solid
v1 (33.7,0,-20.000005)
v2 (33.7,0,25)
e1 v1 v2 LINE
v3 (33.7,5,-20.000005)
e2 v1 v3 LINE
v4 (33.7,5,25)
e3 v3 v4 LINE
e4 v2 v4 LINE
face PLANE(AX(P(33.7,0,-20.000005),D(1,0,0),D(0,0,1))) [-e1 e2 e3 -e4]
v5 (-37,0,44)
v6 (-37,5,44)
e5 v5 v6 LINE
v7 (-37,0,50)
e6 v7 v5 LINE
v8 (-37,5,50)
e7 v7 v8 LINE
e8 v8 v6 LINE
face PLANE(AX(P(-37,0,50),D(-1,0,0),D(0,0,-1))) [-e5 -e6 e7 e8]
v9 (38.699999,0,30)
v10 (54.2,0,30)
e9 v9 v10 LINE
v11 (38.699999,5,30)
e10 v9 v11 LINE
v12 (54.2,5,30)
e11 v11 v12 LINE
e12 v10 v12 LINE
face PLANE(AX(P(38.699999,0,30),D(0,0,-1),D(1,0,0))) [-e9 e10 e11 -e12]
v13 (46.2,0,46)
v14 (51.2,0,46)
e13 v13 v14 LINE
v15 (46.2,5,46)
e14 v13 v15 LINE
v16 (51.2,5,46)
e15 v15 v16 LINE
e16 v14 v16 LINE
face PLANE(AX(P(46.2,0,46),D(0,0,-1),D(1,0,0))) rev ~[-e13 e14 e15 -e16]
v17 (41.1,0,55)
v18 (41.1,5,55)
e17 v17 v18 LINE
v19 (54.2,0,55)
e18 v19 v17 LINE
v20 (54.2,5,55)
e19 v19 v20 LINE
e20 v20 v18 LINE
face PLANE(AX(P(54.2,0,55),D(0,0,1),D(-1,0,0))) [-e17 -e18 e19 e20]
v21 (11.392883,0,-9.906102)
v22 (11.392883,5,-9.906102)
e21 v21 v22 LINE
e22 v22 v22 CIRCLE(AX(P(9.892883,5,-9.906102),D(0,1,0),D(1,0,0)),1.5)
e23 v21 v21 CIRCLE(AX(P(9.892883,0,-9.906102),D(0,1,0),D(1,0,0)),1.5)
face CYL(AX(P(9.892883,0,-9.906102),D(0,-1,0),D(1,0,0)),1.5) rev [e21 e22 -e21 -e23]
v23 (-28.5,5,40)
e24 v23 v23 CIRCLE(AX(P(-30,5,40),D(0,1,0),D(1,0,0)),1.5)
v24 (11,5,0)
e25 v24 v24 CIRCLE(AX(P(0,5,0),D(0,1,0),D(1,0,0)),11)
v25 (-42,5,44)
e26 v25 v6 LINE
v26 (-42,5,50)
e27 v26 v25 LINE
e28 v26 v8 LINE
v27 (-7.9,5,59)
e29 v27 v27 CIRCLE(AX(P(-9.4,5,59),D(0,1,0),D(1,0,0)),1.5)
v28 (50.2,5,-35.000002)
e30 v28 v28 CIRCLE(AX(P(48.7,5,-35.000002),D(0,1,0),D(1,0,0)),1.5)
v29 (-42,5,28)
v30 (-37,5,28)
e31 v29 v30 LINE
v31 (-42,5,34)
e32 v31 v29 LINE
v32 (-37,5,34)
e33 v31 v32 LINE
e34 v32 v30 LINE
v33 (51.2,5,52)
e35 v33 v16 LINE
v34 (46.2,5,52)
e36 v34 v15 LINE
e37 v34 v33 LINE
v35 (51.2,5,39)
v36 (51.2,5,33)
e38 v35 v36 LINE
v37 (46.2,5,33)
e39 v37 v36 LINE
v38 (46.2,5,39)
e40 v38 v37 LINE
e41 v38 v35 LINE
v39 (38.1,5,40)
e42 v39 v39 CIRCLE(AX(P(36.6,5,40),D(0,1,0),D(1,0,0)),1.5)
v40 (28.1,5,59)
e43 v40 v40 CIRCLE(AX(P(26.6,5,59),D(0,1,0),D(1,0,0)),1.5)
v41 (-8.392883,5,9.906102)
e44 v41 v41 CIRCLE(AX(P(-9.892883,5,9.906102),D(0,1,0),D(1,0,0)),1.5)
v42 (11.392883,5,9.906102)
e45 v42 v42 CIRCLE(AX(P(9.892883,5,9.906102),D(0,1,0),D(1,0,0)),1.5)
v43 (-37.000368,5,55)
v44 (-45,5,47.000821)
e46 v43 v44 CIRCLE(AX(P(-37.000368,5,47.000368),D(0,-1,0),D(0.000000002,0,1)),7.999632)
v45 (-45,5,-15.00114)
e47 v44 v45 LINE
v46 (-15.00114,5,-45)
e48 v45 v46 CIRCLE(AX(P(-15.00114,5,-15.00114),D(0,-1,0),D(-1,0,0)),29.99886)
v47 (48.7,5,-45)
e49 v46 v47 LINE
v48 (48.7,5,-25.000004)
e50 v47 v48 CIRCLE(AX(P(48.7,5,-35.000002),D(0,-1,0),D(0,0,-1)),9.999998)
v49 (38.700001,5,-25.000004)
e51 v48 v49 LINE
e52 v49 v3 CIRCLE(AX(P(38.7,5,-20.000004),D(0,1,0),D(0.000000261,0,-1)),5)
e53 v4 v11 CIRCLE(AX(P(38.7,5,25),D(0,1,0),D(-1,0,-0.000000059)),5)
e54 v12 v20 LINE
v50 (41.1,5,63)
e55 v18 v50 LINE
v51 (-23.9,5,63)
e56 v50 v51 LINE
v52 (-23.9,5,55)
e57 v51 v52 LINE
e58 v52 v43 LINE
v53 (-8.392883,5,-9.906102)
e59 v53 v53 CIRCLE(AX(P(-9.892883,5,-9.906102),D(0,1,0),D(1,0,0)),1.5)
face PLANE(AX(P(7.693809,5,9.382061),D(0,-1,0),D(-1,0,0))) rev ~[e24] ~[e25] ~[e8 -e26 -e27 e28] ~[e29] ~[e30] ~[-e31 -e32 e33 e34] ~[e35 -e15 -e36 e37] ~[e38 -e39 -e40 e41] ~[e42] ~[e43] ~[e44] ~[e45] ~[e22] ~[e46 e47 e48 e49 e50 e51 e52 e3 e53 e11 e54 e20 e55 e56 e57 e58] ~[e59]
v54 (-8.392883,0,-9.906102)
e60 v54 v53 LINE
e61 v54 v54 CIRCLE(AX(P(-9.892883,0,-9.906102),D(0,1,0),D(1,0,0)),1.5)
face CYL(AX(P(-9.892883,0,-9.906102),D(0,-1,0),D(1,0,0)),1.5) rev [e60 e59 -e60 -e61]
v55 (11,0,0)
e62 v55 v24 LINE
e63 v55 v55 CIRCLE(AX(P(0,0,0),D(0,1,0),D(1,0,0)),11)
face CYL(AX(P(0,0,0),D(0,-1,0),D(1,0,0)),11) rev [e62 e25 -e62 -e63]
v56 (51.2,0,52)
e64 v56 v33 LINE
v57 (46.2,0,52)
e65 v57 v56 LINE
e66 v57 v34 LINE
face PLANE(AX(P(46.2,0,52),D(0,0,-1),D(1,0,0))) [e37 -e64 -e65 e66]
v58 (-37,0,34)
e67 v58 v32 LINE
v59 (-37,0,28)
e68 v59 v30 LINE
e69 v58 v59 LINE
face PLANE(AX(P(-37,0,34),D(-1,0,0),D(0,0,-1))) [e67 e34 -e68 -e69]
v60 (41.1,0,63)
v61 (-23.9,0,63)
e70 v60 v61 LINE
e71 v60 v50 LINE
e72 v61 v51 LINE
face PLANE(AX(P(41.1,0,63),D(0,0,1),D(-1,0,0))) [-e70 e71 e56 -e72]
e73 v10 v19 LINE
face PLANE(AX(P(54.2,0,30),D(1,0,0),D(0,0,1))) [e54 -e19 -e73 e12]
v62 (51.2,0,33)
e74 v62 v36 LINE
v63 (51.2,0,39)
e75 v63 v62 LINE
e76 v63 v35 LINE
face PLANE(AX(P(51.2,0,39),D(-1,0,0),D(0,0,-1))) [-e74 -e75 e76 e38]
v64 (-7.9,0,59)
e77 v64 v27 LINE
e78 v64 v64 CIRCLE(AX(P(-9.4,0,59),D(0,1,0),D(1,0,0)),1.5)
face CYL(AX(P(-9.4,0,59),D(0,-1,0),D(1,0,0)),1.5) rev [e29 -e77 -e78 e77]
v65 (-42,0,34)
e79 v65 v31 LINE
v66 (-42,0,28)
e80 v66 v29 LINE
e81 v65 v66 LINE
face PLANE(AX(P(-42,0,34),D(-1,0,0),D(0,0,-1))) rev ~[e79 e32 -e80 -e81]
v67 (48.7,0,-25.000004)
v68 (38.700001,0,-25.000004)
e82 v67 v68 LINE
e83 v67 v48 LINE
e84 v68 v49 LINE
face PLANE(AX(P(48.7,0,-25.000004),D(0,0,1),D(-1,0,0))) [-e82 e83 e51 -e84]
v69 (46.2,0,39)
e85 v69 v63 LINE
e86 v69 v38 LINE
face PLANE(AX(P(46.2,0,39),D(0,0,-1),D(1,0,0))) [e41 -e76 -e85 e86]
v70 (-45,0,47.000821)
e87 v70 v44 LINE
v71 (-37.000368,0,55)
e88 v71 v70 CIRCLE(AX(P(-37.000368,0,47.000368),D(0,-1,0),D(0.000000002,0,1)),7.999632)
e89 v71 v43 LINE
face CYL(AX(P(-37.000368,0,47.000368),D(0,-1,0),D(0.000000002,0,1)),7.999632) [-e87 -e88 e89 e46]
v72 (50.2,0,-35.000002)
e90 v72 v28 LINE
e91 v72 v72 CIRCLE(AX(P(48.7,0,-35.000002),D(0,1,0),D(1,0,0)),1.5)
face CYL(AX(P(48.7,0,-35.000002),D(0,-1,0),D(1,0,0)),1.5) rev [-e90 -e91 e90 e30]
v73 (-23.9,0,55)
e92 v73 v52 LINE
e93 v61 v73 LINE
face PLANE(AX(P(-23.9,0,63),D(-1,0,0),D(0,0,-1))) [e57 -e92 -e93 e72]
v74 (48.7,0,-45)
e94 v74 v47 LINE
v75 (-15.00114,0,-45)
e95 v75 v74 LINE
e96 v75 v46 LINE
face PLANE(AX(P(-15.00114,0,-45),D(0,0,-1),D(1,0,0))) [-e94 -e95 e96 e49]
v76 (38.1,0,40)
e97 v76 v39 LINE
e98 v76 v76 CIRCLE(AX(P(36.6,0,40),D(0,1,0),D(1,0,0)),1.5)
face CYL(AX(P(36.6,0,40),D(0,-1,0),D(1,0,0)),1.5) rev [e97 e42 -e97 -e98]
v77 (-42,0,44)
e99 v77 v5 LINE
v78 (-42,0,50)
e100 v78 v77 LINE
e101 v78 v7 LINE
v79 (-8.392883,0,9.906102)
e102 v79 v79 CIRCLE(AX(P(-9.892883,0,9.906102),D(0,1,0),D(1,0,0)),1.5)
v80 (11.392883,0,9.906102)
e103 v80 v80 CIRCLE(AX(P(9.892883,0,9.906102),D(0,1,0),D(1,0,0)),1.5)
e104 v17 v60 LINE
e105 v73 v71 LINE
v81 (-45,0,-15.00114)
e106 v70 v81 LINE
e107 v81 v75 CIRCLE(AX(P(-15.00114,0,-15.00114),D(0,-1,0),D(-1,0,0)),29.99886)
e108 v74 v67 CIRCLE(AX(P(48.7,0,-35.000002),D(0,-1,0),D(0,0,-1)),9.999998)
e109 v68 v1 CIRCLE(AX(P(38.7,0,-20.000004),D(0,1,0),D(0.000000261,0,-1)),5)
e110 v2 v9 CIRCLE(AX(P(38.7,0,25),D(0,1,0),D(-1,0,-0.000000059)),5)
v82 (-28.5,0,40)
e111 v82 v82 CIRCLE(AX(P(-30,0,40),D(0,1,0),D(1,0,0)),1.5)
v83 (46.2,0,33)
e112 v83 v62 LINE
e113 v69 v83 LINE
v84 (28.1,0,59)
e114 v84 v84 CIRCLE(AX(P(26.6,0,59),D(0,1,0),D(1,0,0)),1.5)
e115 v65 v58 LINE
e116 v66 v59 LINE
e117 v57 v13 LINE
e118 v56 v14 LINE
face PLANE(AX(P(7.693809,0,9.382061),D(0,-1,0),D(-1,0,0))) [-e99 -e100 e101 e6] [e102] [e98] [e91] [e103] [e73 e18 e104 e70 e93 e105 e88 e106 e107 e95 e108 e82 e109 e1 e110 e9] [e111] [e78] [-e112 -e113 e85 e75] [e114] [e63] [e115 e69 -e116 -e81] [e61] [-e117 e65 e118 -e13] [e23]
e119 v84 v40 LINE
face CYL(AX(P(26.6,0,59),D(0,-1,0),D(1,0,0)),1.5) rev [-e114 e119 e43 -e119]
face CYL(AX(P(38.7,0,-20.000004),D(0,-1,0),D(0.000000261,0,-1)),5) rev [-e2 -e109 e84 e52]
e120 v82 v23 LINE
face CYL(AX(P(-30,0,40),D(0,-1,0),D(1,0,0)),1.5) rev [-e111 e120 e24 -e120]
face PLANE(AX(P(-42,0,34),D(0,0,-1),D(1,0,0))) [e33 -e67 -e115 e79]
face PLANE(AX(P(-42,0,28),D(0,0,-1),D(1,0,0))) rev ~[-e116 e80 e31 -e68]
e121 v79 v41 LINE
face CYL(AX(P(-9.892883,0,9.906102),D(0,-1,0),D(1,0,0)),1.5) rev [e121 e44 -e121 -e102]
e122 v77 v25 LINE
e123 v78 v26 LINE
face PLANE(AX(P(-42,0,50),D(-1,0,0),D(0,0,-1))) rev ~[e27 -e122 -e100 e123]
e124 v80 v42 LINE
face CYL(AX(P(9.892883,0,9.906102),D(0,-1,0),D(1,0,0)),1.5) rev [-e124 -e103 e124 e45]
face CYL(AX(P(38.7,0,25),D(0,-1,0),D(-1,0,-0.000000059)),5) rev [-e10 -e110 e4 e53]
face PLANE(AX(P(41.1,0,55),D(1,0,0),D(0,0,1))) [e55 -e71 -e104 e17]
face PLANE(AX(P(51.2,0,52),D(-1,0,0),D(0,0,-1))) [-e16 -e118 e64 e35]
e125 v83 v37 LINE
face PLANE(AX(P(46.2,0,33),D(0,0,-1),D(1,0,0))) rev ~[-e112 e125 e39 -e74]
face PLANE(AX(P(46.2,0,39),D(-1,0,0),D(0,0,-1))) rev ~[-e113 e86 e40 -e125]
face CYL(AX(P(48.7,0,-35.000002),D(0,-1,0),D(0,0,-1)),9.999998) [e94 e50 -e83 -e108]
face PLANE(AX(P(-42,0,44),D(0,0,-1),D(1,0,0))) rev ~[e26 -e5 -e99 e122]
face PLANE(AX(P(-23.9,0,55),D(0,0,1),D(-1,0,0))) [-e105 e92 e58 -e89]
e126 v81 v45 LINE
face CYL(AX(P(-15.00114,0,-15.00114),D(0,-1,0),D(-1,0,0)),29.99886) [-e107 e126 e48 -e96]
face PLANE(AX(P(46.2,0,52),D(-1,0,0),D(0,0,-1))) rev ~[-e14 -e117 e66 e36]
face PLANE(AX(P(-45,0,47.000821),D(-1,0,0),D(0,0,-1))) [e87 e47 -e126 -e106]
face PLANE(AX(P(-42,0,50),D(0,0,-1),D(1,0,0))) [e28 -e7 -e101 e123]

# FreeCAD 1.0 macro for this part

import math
import FreeCAD as App
import Part
import Sketcher

V = App.Vector

doc = App.newDocument("Part")
body = doc.addObject("PartDesign::Body", "Body")

sketch1 = doc.addObject("Sketcher::SketchObject", "Sketch")
body.addObject(sketch1)
sketch1.AttachmentSupport = (doc.XZ_Plane, [""])
sketch1.MapMode = "FlatFace"
sketch1.addGeometry([
    Part.LineSegment(V(38.700001, -25.000004, 0), V(48.7, -25.000004, 0)),
    Part.ArcOfCircle(Part.Circle(V(48.7, -35.000002, 0), V(0, 0, 1), 9.999998), math.radians(-90), math.radians(90)),
    Part.LineSegment(V(48.7, -45, 0), V(-15.00114, -45, 0)),
    Part.ArcOfCircle(Part.Circle(V(-15.00114, -15.00114, 0), V(0, 0, 1), 29.99886), math.radians(180), math.radians(270)),
    Part.LineSegment(V(-45, -15.00114, 0), V(-45, 47.000821, 0)),
    Part.ArcOfCircle(Part.Circle(V(-37.000368, 47.000368, 0), V(0, 0, 1), 7.999632), math.radians(90), math.radians(179.996759)),
    Part.LineSegment(V(-37.000368, 55, 0), V(-23.9, 55, 0)),
    Part.LineSegment(V(-23.9, 55, 0), V(-23.9, 63, 0)),
    Part.LineSegment(V(-23.9, 63, 0), V(41.1, 63, 0)),
    Part.LineSegment(V(41.1, 63, 0), V(41.1, 55, 0)),
    Part.LineSegment(V(41.1, 55, 0), V(54.2, 55, 0)),
    Part.LineSegment(V(54.2, 55, 0), V(54.2, 30, 0)),
    Part.LineSegment(V(54.2, 30, 0), V(38.699999, 30, 0)),
    Part.ArcOfCircle(Part.Circle(V(38.7, 25, 0), V(0, 0, 1), 5), math.radians(90.000003), math.radians(180.000003)),
    Part.LineSegment(V(33.7, 25, 0), V(33.7, -20.000005, 0)),
    Part.ArcOfCircle(Part.Circle(V(38.7, -20.000004, 0), V(0, 0, 1), 5), math.radians(-179.999985), math.radians(-89.999985)),
    Part.LineSegment(V(46.2, 52, 0), V(46.2, 46, 0)),
    Part.LineSegment(V(46.2, 46, 0), V(51.2, 46, 0)),
    Part.LineSegment(V(51.2, 46, 0), V(51.2, 52, 0)),
    Part.LineSegment(V(51.2, 52, 0), V(46.2, 52, 0)),
    Part.Circle(V(36.6, 40, 0), V(0, 0, 1), 1.5),
    Part.Circle(V(26.6, 59, 0), V(0, 0, 1), 1.5),
    Part.LineSegment(V(46.2, 39, 0), V(46.2, 33, 0)),
    Part.LineSegment(V(46.2, 33, 0), V(51.2, 33, 0)),
    Part.LineSegment(V(51.2, 33, 0), V(51.2, 39, 0)),
    Part.LineSegment(V(51.2, 39, 0), V(46.2, 39, 0)),
    Part.Circle(V(-9.4, 59, 0), V(0, 0, 1), 1.5),
    Part.Circle(V(-30, 40, 0), V(0, 0, 1), 1.5),
    Part.LineSegment(V(-42, 50, 0), V(-42, 44, 0)),
    Part.LineSegment(V(-42, 44, 0), V(-37, 44, 0)),
    Part.LineSegment(V(-37, 44, 0), V(-37, 50, 0)),
    Part.LineSegment(V(-37, 50, 0), V(-42, 50, 0)),
    Part.LineSegment(V(-42, 34, 0), V(-42, 28, 0)),
    Part.LineSegment(V(-42, 28, 0), V(-37, 28, 0)),
    Part.LineSegment(V(-37, 28, 0), V(-37, 34, 0)),
    Part.LineSegment(V(-37, 34, 0), V(-42, 34, 0)),
    Part.Circle(V(9.892883, 9.906102, 0), V(0, 0, 1), 1.5),
    Part.Circle(V(9.892883, -9.906102, 0), V(0, 0, 1), 1.5),
    Part.Circle(V(48.7, -35.000002, 0), V(0, 0, 1), 1.5),
    Part.Circle(V(0, 0, 0), V(0, 0, 1), 11),
    Part.Circle(V(-9.892883, 9.906102, 0), V(0, 0, 1), 1.5),
    Part.Circle(V(-9.892883, -9.906102, 0), V(0, 0, 1), 1.5),
], False)
sketch1.addConstraint([
    Sketcher.Constraint("Tangent", 0, 2, 1, 2),
    Sketcher.Constraint("Tangent", 1, 1, 2, 1),
    Sketcher.Constraint("Tangent", 2, 2, 3, 2),
    Sketcher.Constraint("Tangent", 3, 1, 4, 1),
    Sketcher.Constraint("Coincident", 4, 2, 5, 2),
    Sketcher.Constraint("Tangent", 5, 1, 6, 1),
    Sketcher.Constraint("Coincident", 6, 2, 7, 1),
    Sketcher.Constraint("Coincident", 7, 2, 8, 1),
    Sketcher.Constraint("Coincident", 8, 2, 9, 1),
    Sketcher.Constraint("Coincident", 9, 2, 10, 1),
    Sketcher.Constraint("Coincident", 10, 2, 11, 1),
    Sketcher.Constraint("Coincident", 11, 2, 12, 1),
    Sketcher.Constraint("Tangent", 12, 2, 13, 1),
    Sketcher.Constraint("Tangent", 13, 2, 14, 1),
    Sketcher.Constraint("Tangent", 14, 2, 15, 1),
    Sketcher.Constraint("Tangent", 15, 2, 0, 1),
    Sketcher.Constraint("Coincident", 16, 2, 17, 1),
    Sketcher.Constraint("Coincident", 17, 2, 18, 1),
    Sketcher.Constraint("Coincident", 18, 2, 19, 1),
    Sketcher.Constraint("Coincident", 19, 2, 16, 1),
    Sketcher.Constraint("Coincident", 22, 2, 23, 1),
    Sketcher.Constraint("Coincident", 23, 2, 24, 1),
    Sketcher.Constraint("Coincident", 24, 2, 25, 1),
    Sketcher.Constraint("Coincident", 25, 2, 22, 1),
    Sketcher.Constraint("Coincident", 28, 2, 29, 1),
    Sketcher.Constraint("Coincident", 29, 2, 30, 1),
    Sketcher.Constraint("Coincident", 30, 2, 31, 1),
    Sketcher.Constraint("Coincident", 31, 2, 28, 1),
    Sketcher.Constraint("Coincident", 32, 2, 33, 1),
    Sketcher.Constraint("Coincident", 33, 2, 34, 1),
    Sketcher.Constraint("Coincident", 34, 2, 35, 1),
    Sketcher.Constraint("Coincident", 35, 2, 32, 1),
    Sketcher.Constraint("Horizontal", 0),
    Sketcher.Constraint("Horizontal", 2),
    Sketcher.Constraint("Vertical", 4),
    Sketcher.Constraint("Horizontal", 6),
    Sketcher.Constraint("Vertical", 7),
    Sketcher.Constraint("Horizontal", 8),
    Sketcher.Constraint("Vertical", 9),
    Sketcher.Constraint("Horizontal", 10),
    Sketcher.Constraint("Vertical", 11),
    Sketcher.Constraint("Horizontal", 12),
    Sketcher.Constraint("Vertical", 14),
    Sketcher.Constraint("Vertical", 16),
    Sketcher.Constraint("Horizontal", 17),
    Sketcher.Constraint("Vertical", 18),
    Sketcher.Constraint("Horizontal", 19),
    Sketcher.Constraint("Vertical", 22),
    Sketcher.Constraint("Horizontal", 23),
    Sketcher.Constraint("Vertical", 24),
    Sketcher.Constraint("Horizontal", 25),
    Sketcher.Constraint("Vertical", 28),
    Sketcher.Constraint("Horizontal", 29),
    Sketcher.Constraint("Vertical", 30),
    Sketcher.Constraint("Horizontal", 31),
    Sketcher.Constraint("Vertical", 32),
    Sketcher.Constraint("Horizontal", 33),
    Sketcher.Constraint("Vertical", 34),
    Sketcher.Constraint("Horizontal", 35),
    Sketcher.Constraint("Coincident", 39, 3, -1, 1),
    Sketcher.Constraint("Coincident", 38, 3, 1, 3),
    Sketcher.Constraint("Equal", 13, 15),
    Sketcher.Constraint("Equal", 20, 21),
    Sketcher.Constraint("Equal", 21, 26),
    Sketcher.Constraint("Equal", 26, 27),
    Sketcher.Constraint("Equal", 27, 36),
    Sketcher.Constraint("Equal", 36, 37),
    Sketcher.Constraint("Equal", 37, 38),
    Sketcher.Constraint("Equal", 38, 40),
    Sketcher.Constraint("Equal", 40, 41),
    Sketcher.Constraint("Symmetric", 37, 3, 40, 3, -1, 1),
    Sketcher.Constraint("Symmetric", 36, 3, 41, 3, -1, 1),
    Sketcher.Constraint("Symmetric", 36, 3, 40, 3, -2),
    Sketcher.Constraint("Horizontal", 21, 3, 26, 3),
    Sketcher.Constraint("Horizontal", 20, 3, 27, 3),
    Sketcher.Constraint("Horizontal", 6, 2, 9, 2),
    Sketcher.Constraint("Vertical", 19, 2, 22, 2),
    Sketcher.Constraint("Vertical", 18, 2, 23, 2),
    Sketcher.Constraint("Vertical", 31, 2, 32, 2),
    Sketcher.Constraint("Vertical", 30, 2, 33, 2),
    Sketcher.Constraint("Equal", 25, 29),
    Sketcher.Constraint("Equal", 18, 22),
    Sketcher.Constraint("Equal", 24, 28),
    Sketcher.Constraint("Equal", 30, 32),
    Sketcher.Constraint("Diameter", 20, 3.0),
    Sketcher.Constraint("Diameter", 39, 22.0),
    Sketcher.Constraint("Radius", 13, 5.0),
    Sketcher.Constraint("DistanceX", 0, 1, 0, 2, 9.999999),
    Sketcher.Constraint("DistanceX", 8, 1, 8, 2, 65.0),
    Sketcher.Constraint("DistanceX", 17, 1, 17, 2, 5.0),
    Sketcher.Constraint("DistanceY", 7, 1, 7, 2, 8.0),
    Sketcher.Constraint("DistanceY", 11, 2, 11, 1, 25.0),
    Sketcher.Constraint("DistanceY", 16, 2, 16, 1, 6.0),
    Sketcher.Constraint("DistanceX", 10, 1, 10, 2, 13.1),
    Sketcher.Constraint("DistanceX", 12, 2, 12, 1, 15.500001),
    Sketcher.Constraint("DistanceY", -1, 1, 13, 3, 25.0),
    Sketcher.Constraint("DistanceY", -1, 1, 20, 3, 40.0),
    Sketcher.Constraint("DistanceY", -1, 1, 21, 3, 59.0),
    Sketcher.Constraint("DistanceX", 27, 3, -1, 1, 30.0),
    Sketcher.Constraint("DistanceY", 1, 1, -1, 1, 45.0),
    Sketcher.Constraint("DistanceX", 3, 1, -1, 1, 45.0),
    Sketcher.Constraint("DistanceY", -1, 1, 16, 2, 46.0),
    Sketcher.Constraint("DistanceY", -1, 1, 22, 2, 33.0),
    Sketcher.Constraint("DistanceX", 28, 2, -1, 1, 42.0),
    Sketcher.Constraint("DistanceY", -1, 1, 28, 2, 44.0),
    Sketcher.Constraint("DistanceY", -1, 1, 32, 2, 28.0),
    Sketcher.Constraint("DistanceX", 21, 3, 20, 3, 10.0),
    Sketcher.Constraint("DistanceX", 26, 3, 21, 3, 36.0),
    Sketcher.Constraint("DistanceX", 16, 2, 10, 2, 8.0),
    Sketcher.Constraint("DistanceX", -1, 1, 1, 3, 48.7),
    Sketcher.Constraint("DistanceX", -1, 1, 20, 3, 36.6),
    Sketcher.Constraint("Radius", 3, 29.99886),
    Sketcher.Constraint("Radius", 5, 7.999632),
    Sketcher.Constraint("Radius", 1, 9.999998),
    Sketcher.Constraint("DistanceY", 4, 1, 4, 2, 62.001961),
    Sketcher.Constraint("DistanceY", 36, 3, 13, 3, 15.093898),
    Sketcher.Constraint("DistanceX", -1, 1, 36, 3, 9.892883),
])
pad1 = doc.addObject("PartDesign::Pad", "Pad")
body.addObject(pad1)
pad1.Profile = sketch1
pad1.Length = 5
pad1.Reversed = True

doc.recompute()
